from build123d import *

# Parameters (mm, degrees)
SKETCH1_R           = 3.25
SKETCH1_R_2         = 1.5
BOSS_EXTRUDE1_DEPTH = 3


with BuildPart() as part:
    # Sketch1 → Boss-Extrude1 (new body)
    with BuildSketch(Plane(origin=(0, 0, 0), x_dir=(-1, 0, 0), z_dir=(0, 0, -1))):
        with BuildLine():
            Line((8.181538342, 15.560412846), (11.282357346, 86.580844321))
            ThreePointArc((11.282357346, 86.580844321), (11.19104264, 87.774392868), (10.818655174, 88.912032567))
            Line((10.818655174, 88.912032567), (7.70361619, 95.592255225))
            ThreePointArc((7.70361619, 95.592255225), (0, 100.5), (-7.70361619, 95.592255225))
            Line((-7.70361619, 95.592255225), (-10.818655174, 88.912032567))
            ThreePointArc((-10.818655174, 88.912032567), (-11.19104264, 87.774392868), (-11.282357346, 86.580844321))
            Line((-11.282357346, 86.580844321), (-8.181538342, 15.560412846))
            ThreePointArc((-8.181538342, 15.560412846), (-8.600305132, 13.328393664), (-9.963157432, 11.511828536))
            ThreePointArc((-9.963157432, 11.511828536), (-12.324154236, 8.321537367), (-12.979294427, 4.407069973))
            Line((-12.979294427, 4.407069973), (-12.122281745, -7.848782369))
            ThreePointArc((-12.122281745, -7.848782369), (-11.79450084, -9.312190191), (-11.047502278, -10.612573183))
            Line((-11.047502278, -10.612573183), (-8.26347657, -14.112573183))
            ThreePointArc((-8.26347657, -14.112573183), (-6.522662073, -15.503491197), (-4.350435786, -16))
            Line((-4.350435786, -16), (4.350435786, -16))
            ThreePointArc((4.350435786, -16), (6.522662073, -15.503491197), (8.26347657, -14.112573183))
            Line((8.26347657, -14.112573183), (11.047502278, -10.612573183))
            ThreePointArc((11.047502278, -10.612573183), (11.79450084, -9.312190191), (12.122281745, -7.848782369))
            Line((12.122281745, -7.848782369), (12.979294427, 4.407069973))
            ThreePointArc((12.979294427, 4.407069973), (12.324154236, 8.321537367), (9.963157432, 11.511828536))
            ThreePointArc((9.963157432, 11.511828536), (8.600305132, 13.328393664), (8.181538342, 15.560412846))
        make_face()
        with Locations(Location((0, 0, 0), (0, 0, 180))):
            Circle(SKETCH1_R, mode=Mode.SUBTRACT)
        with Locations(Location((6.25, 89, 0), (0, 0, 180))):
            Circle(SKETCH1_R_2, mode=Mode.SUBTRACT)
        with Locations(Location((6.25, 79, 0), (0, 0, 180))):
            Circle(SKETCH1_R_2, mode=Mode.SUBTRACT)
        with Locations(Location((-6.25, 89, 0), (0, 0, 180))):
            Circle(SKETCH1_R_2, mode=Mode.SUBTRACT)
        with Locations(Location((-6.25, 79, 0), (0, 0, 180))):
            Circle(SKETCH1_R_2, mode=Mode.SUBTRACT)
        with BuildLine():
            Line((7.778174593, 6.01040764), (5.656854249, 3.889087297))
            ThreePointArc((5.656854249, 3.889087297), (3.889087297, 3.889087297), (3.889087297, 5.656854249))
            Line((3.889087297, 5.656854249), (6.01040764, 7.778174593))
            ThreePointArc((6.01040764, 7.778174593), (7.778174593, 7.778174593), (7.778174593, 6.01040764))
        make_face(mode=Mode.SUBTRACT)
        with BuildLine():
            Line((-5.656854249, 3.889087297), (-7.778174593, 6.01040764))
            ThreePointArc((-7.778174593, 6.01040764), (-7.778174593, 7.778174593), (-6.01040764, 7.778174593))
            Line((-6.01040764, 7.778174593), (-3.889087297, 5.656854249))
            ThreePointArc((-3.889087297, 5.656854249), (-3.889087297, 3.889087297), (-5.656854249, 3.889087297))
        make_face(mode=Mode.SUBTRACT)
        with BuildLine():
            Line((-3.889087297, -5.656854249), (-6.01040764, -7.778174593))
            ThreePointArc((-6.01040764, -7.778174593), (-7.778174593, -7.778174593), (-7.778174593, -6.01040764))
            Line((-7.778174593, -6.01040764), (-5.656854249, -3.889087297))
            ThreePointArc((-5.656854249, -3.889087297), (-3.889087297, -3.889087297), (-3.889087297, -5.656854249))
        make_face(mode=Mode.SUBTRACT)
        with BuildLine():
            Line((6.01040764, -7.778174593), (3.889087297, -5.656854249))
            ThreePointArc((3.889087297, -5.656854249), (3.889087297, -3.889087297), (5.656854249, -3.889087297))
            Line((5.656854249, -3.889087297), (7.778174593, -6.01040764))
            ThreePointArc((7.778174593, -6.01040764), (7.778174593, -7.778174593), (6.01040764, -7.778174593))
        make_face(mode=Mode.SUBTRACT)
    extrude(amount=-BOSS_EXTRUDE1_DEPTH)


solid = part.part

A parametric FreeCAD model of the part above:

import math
import FreeCAD as App
import Part
import Sketcher
from FreeCAD import Vector
Q = App.Units.Quantity

doc = App.newDocument("Part")
body = doc.addObject("PartDesign::Body", "Body")

sketch1 = body.newObject("Sketcher::SketchObject", "Sketch")
sketch1.AttachmentSupport = (doc.getObject("XY_Plane"), [""])
sketch1.MapMode = "FlatFace"
sketch1.addGeometry(Part.LineSegment(Vector(-8.2, 15.6, 0), Vector(-11.3, 86.6, 0)), False)
sketch1.addGeometry(Part.ArcOfCircle(Part.Circle(Vector(-6.3, 86.8, 0), Vector(0, 0, 1), 5), math.radians(155), math.radians(182)), False)
sketch1.addGeometry(Part.LineSegment(Vector(-10.8, 88.9, 0), Vector(-7.7, 95.6, 0)), False)
sketch1.addGeometry(Part.ArcOfCircle(Part.Circle(Vector(0, 92, 0), Vector(0, 0, 1), 8.5), math.radians(25), math.radians(155)), False)
sketch1.addGeometry(Part.LineSegment(Vector(7.7, 95.6, 0), Vector(10.8, 88.9, 0)), False)
sketch1.addGeometry(Part.ArcOfCircle(Part.Circle(Vector(6.3, 86.8, 0), Vector(0, 0, 1), 5), math.radians(-2), math.radians(25)), False)
sketch1.addGeometry(Part.LineSegment(Vector(11.3, 86.6, 0), Vector(8.2, 15.6, 0)), False)
sketch1.addGeometry(Part.ArcOfCircle(Part.Circle(Vector(13.2, 15.3, 0), Vector(0, 0, 1), 5), math.radians(178), math.radians(230)), False)
sketch1.addGeometry(Part.ArcOfCircle(Part.Circle(Vector(4.5, 5, 0), Vector(0, 0, 1), 8.5), math.radians(-4), math.radians(50)), False)
sketch1.addGeometry(Part.LineSegment(Vector(13, 4.4, 0), Vector(12.1, -7.8, 0)), False)
sketch1.addGeometry(Part.ArcOfCircle(Part.Circle(Vector(7.1, -7.5, 0), Vector(0, 0, 1), 5), math.radians(-38), math.radians(-4)), False)
sketch1.addGeometry(Part.LineSegment(Vector(11, -10.6, 0), Vector(8.3, -14.1, 0)), False)
sketch1.addGeometry(Part.ArcOfCircle(Part.Circle(Vector(4.4, -11, 0), Vector(0, 0, 1), 5), math.radians(-90), math.radians(-38)), False)
sketch1.addGeometry(Part.LineSegment(Vector(4.4, -16, 0), Vector(-4.4, -16, 0)), False)
sketch1.addGeometry(Part.ArcOfCircle(Part.Circle(Vector(-4.4, -11, 0), Vector(0, 0, 1), 5), math.radians(-142), math.radians(-90)), False)
sketch1.addGeometry(Part.LineSegment(Vector(-8.3, -14.1, 0), Vector(-11, -10.6, 0)), False)
sketch1.addGeometry(Part.ArcOfCircle(Part.Circle(Vector(-7.1, -7.5, 0), Vector(0, 0, 1), 5), math.radians(-176), math.radians(-142)), False)
sketch1.addGeometry(Part.LineSegment(Vector(-12.1, -7.8, 0), Vector(-13, 4.4, 0)), False)
sketch1.addGeometry(Part.ArcOfCircle(Part.Circle(Vector(-4.5, 5, 0), Vector(0, 0, 1), 8.5), math.radians(130), math.radians(184)), False)
sketch1.addGeometry(Part.ArcOfCircle(Part.Circle(Vector(-13.2, 15.3, 0), Vector(0, 0, 1), 5), math.radians(-50), math.radians(2)), False)
sketch1.addGeometry(Part.ArcOfCircle(Part.Circle(Vector(4.8, -4.8, 0), Vector(0, 0, 1), 1.2), math.radians(45), math.radians(225)), False)
sketch1.addGeometry(Part.LineSegment(Vector(3.9, -5.7, 0), Vector(6, -7.8, 0)), False)
sketch1.addGeometry(Part.ArcOfCircle(Part.Circle(Vector(6.9, -6.9, 0), Vector(0, 0, 1), 1.2), math.radians(-135), math.radians(45)), False)
sketch1.addGeometry(Part.LineSegment(Vector(7.8, -6, 0), Vector(5.7, -3.9, 0)), False)
sketch1.addGeometry(Part.ArcOfCircle(Part.Circle(Vector(4.8, 4.8, 0), Vector(0, 0, 1), 1.2), math.radians(135), math.radians(315)), False)
sketch1.addGeometry(Part.LineSegment(Vector(5.7, 3.9, 0), Vector(7.8, 6, 0)), False)
sketch1.addGeometry(Part.ArcOfCircle(Part.Circle(Vector(6.9, 6.9, 0), Vector(0, 0, 1), 1.2), math.radians(-45), math.radians(135)), False)
sketch1.addGeometry(Part.LineSegment(Vector(6, 7.8, 0), Vector(3.9, 5.7, 0)), False)
sketch1.addGeometry(Part.Circle(Vector(0, 0, 0), Vector(0, 0, 1), 3.2), False)
sketch1.addGeometry(Part.ArcOfCircle(Part.Circle(Vector(-6.9, -6.9, 0), Vector(0, 0, 1), 1.2), math.radians(135), math.radians(315)), False)
sketch1.addGeometry(Part.LineSegment(Vector(-6, -7.8, 0), Vector(-3.9, -5.7, 0)), False)
sketch1.addGeometry(Part.ArcOfCircle(Part.Circle(Vector(-4.8, -4.8, 0), Vector(0, 0, 1), 1.2), math.radians(-45), math.radians(135)), False)
sketch1.addGeometry(Part.LineSegment(Vector(-5.7, -3.9, 0), Vector(-7.8, -6, 0)), False)
sketch1.addGeometry(Part.ArcOfCircle(Part.Circle(Vector(-6.9, 6.9, 0), Vector(0, 0, 1), 1.2), math.radians(45), math.radians(225)), False)
sketch1.addGeometry(Part.LineSegment(Vector(-7.8, 6, 0), Vector(-5.7, 3.9, 0)), False)
sketch1.addGeometry(Part.ArcOfCircle(Part.Circle(Vector(-4.8, 4.8, 0), Vector(0, 0, 1), 1.2), math.radians(-135), math.radians(45)), False)
sketch1.addGeometry(Part.LineSegment(Vector(-3.9, 5.7, 0), Vector(-6, 7.8, 0)), False)
sketch1.addGeometry(Part.Circle(Vector(6.2, 79, 0), Vector(0, 0, 1), 1.5), False)
sketch1.addGeometry(Part.Circle(Vector(6.2, 89, 0), Vector(0, 0, 1), 1.5), False)
sketch1.addGeometry(Part.Circle(Vector(-6.2, 79, 0), Vector(0, 0, 1), 1.5), False)
sketch1.addGeometry(Part.Circle(Vector(-6.2, 89, 0), Vector(0, 0, 1), 1.5), False)
sketch1.addConstraint(Sketcher.Constraint("Tangent", 0, 2, 1, 2))
sketch1.addConstraint(Sketcher.Constraint("Tangent", 1, 1, 2, 1))
sketch1.addConstraint(Sketcher.Constraint("Tangent", 2, 2, 3, 2))
sketch1.addConstraint(Sketcher.Constraint("Tangent", 3, 1, 4, 1))
sketch1.addConstraint(Sketcher.Constraint("Tangent", 4, 2, 5, 2))
sketch1.addConstraint(Sketcher.Constraint("Tangent", 5, 1, 6, 1))
sketch1.addConstraint(Sketcher.Constraint("Tangent", 6, 2, 7, 1))
sketch1.addConstraint(Sketcher.Constraint("Tangent", 7, 2, 8, 2))
sketch1.addConstraint(Sketcher.Constraint("Tangent", 8, 1, 9, 1))
sketch1.addConstraint(Sketcher.Constraint("Tangent", 9, 2, 10, 2))
sketch1.addConstraint(Sketcher.Constraint("Tangent", 10, 1, 11, 1))
sketch1.addConstraint(Sketcher.Constraint("Tangent", 11, 2, 12, 2))
sketch1.addConstraint(Sketcher.Constraint("Tangent", 12, 1, 13, 1))
sketch1.addConstraint(Sketcher.Constraint("Tangent", 13, 2, 14, 2))
sketch1.addConstraint(Sketcher.Constraint("Tangent", 14, 1, 15, 1))
sketch1.addConstraint(Sketcher.Constraint("Tangent", 15, 2, 16, 2))
sketch1.addConstraint(Sketcher.Constraint("Tangent", 16, 1, 17, 1))
sketch1.addConstraint(Sketcher.Constraint("Tangent", 17, 2, 18, 2))
sketch1.addConstraint(Sketcher.Constraint("Tangent", 18, 1, 19, 1))
sketch1.addConstraint(Sketcher.Constraint("Tangent", 19, 2, 0, 1))
sketch1.addConstraint(Sketcher.Constraint("Tangent", 20, 2, 21, 1))
sketch1.addConstraint(Sketcher.Constraint("Tangent", 21, 2, 22, 1))
sketch1.addConstraint(Sketcher.Constraint("Tangent", 22, 2, 23, 1))
sketch1.addConstraint(Sketcher.Constraint("Tangent", 23, 2, 20, 1))
sketch1.addConstraint(Sketcher.Constraint("Tangent", 24, 2, 25, 1))
sketch1.addConstraint(Sketcher.Constraint("Tangent", 25, 2, 26, 1))
sketch1.addConstraint(Sketcher.Constraint("Tangent", 26, 2, 27, 1))
sketch1.addConstraint(Sketcher.Constraint("Tangent", 27, 2, 24, 1))
sketch1.addConstraint(Sketcher.Constraint("Tangent", 29, 2, 30, 1))
sketch1.addConstraint(Sketcher.Constraint("Tangent", 30, 2, 31, 1))
sketch1.addConstraint(Sketcher.Constraint("Tangent", 31, 2, 32, 1))
sketch1.addConstraint(Sketcher.Constraint("Tangent", 32, 2, 29, 1))
sketch1.addConstraint(Sketcher.Constraint("Tangent", 33, 2, 34, 1))
sketch1.addConstraint(Sketcher.Constraint("Tangent", 34, 2, 35, 1))
sketch1.addConstraint(Sketcher.Constraint("Tangent", 35, 2, 36, 1))
sketch1.addConstraint(Sketcher.Constraint("Tangent", 36, 2, 33, 1))
sketch1.addConstraint(Sketcher.Constraint("Horizontal", 13))
sketch1.addConstraint(Sketcher.Constraint("Coincident", 28, 3, -1, 1))
sketch1.addConstraint(Sketcher.Constraint("Equal", 1, 5))
sketch1.addConstraint(Sketcher.Constraint("Equal", 5, 7))
sketch1.addConstraint(Sketcher.Constraint("Equal", 3, 8))
sketch1.addConstraint(Sketcher.Constraint("Equal", 7, 10))
sketch1.addConstraint(Sketcher.Constraint("Equal", 10, 12))
sketch1.addConstraint(Sketcher.Constraint("Equal", 12, 14))
sketch1.addConstraint(Sketcher.Constraint("Equal", 14, 16))
sketch1.addConstraint(Sketcher.Constraint("Equal", 8, 18))
sketch1.addConstraint(Sketcher.Constraint("Equal", 16, 19))
sketch1.addConstraint(Sketcher.Constraint("Equal", 20, 22))
sketch1.addConstraint(Sketcher.Constraint("Equal", 22, 24))
sketch1.addConstraint(Sketcher.Constraint("Equal", 24, 26))
sketch1.addConstraint(Sketcher.Constraint("Equal", 26, 29))
sketch1.addConstraint(Sketcher.Constraint("Equal", 29, 31))
sketch1.addConstraint(Sketcher.Constraint("Equal", 31, 33))
sketch1.addConstraint(Sketcher.Constraint("Equal", 33, 35))
sketch1.addConstraint(Sketcher.Constraint("Equal", 37, 38))
sketch1.addConstraint(Sketcher.Constraint("Equal", 38, 39))
sketch1.addConstraint(Sketcher.Constraint("Equal", 39, 40))
sketch1.addConstraint(Sketcher.Constraint("Symmetric", 26, 3, 29, 3, -1, 1))
sketch1.addConstraint(Sketcher.Constraint("Symmetric", 24, 3, 31, 3, -1, 1))
sketch1.addConstraint(Sketcher.Constraint("Symmetric", 22, 3, 33, 3, -1, 1))
sketch1.addConstraint(Sketcher.Constraint("Symmetric", 20, 3, 35, 3, -1, 1))
sketch1.addConstraint(Sketcher.Constraint("Symmetric", 1, 3, 5, 3, -2))
sketch1.addConstraint(Sketcher.Constraint("Symmetric", 10, 3, 16, 3, -2))
sketch1.addConstraint(Sketcher.Constraint("Symmetric", 8, 3, 18, 3, -2))
sketch1.addConstraint(Sketcher.Constraint("Symmetric", 22, 3, 29, 3, -2))
sketch1.addConstraint(Sketcher.Constraint("Symmetric", 20, 3, 31, 3, -2))
sketch1.addConstraint(Sketcher.Constraint("Symmetric", 37, 3, 39, 3, -2))
sketch1.addConstraint(Sketcher.Constraint("Symmetric", 38, 3, 40, 3, -2))
sketch1.addConstraint(Sketcher.Constraint("PointOnObject", 3, 3, -2))
sketch1.addConstraint(Sketcher.Constraint("Perpendicular", 23, 25))
sketch1.addConstraint(Sketcher.Constraint("Horizontal", 7, 3, 19, 3))
sketch1.addConstraint(Sketcher.Constraint("Horizontal", 11, 2, 14, 1))
sketch1.addConstraint(Sketcher.Constraint("Vertical", 37, 3, 38, 3))
sketch1.addConstraint(Sketcher.Constraint("Diameter", 37, Q("3 mm")))
sketch1.addConstraint(Sketcher.Constraint("Radius", 1, Q("5 mm")))
sketch1.addConstraint(Sketcher.Constraint("Diameter", 28, Q("6.5 mm")))
sketch1.addConstraint(Sketcher.Constraint("Radius", 3, Q("8.5 mm")))
sketch1.addConstraint(Sketcher.Constraint("Angle", 2, Q("65 deg")))
sketch1.addConstraint(Sketcher.Constraint("Angle", 9, Q("-94 deg")))
sketch1.addConstraint(Sketcher.Constraint("Radius", 20, Q("1.25 mm")))
sketch1.addConstraint(Sketcher.Constraint("Distance", 21, Q("3 mm")))
sketch1.addConstraint(Sketcher.Constraint("DistanceY", -1, 1, 3, 3, Q("92 mm")))
sketch1.addConstraint(Sketcher.Constraint("DistanceY", -1, 1, 8, 3, Q("5 mm")))
sketch1.addConstraint(Sketcher.Constraint("DistanceY", 12, 3, -1, 1, Q("11 mm")))
sketch1.addConstraint(Sketcher.Constraint("DistanceY", -1, 1, 37, 3, Q("79 mm")))
sketch1.addConstraint(Sketcher.Constraint("DistanceY", -1, 1, 38, 3, Q("89 mm")))
sketch1.addConstraint(Sketcher.Constraint("Angle", 0, Q("92.5 deg")))
sketch1.addConstraint(Sketcher.Constraint("Angle", 11, Q("-128.5 deg")))
sketch1.addConstraint(Sketcher.Constraint("DistanceX", 18, 3, 8, 3, Q("9 mm")))
sketch1.addConstraint(Sketcher.Constraint("DistanceY", 10, 3, -1, 1, Q("7.5 mm")))
sketch1.addConstraint(Sketcher.Constraint("DistanceX", 39, 3, 37, 3, Q("12.5 mm")))
sketch1.addConstraint(Sketcher.Constraint("DistanceX", 2, 2, 1, 3, Q("1.4165 mm")))
sketch1.addConstraint(Sketcher.Constraint("DistanceY", 8, 1, 24, 3, Q("0.365901 mm")))
sketch1.addConstraint(Sketcher.Constraint("DistanceX", -1, 1, 20, 3, Q("4.772971 mm")))
pad1 = body.newObject("PartDesign::Pad", "Pad")
pad1.Profile = sketch1
pad1.Length = 3

doc.recompute()
